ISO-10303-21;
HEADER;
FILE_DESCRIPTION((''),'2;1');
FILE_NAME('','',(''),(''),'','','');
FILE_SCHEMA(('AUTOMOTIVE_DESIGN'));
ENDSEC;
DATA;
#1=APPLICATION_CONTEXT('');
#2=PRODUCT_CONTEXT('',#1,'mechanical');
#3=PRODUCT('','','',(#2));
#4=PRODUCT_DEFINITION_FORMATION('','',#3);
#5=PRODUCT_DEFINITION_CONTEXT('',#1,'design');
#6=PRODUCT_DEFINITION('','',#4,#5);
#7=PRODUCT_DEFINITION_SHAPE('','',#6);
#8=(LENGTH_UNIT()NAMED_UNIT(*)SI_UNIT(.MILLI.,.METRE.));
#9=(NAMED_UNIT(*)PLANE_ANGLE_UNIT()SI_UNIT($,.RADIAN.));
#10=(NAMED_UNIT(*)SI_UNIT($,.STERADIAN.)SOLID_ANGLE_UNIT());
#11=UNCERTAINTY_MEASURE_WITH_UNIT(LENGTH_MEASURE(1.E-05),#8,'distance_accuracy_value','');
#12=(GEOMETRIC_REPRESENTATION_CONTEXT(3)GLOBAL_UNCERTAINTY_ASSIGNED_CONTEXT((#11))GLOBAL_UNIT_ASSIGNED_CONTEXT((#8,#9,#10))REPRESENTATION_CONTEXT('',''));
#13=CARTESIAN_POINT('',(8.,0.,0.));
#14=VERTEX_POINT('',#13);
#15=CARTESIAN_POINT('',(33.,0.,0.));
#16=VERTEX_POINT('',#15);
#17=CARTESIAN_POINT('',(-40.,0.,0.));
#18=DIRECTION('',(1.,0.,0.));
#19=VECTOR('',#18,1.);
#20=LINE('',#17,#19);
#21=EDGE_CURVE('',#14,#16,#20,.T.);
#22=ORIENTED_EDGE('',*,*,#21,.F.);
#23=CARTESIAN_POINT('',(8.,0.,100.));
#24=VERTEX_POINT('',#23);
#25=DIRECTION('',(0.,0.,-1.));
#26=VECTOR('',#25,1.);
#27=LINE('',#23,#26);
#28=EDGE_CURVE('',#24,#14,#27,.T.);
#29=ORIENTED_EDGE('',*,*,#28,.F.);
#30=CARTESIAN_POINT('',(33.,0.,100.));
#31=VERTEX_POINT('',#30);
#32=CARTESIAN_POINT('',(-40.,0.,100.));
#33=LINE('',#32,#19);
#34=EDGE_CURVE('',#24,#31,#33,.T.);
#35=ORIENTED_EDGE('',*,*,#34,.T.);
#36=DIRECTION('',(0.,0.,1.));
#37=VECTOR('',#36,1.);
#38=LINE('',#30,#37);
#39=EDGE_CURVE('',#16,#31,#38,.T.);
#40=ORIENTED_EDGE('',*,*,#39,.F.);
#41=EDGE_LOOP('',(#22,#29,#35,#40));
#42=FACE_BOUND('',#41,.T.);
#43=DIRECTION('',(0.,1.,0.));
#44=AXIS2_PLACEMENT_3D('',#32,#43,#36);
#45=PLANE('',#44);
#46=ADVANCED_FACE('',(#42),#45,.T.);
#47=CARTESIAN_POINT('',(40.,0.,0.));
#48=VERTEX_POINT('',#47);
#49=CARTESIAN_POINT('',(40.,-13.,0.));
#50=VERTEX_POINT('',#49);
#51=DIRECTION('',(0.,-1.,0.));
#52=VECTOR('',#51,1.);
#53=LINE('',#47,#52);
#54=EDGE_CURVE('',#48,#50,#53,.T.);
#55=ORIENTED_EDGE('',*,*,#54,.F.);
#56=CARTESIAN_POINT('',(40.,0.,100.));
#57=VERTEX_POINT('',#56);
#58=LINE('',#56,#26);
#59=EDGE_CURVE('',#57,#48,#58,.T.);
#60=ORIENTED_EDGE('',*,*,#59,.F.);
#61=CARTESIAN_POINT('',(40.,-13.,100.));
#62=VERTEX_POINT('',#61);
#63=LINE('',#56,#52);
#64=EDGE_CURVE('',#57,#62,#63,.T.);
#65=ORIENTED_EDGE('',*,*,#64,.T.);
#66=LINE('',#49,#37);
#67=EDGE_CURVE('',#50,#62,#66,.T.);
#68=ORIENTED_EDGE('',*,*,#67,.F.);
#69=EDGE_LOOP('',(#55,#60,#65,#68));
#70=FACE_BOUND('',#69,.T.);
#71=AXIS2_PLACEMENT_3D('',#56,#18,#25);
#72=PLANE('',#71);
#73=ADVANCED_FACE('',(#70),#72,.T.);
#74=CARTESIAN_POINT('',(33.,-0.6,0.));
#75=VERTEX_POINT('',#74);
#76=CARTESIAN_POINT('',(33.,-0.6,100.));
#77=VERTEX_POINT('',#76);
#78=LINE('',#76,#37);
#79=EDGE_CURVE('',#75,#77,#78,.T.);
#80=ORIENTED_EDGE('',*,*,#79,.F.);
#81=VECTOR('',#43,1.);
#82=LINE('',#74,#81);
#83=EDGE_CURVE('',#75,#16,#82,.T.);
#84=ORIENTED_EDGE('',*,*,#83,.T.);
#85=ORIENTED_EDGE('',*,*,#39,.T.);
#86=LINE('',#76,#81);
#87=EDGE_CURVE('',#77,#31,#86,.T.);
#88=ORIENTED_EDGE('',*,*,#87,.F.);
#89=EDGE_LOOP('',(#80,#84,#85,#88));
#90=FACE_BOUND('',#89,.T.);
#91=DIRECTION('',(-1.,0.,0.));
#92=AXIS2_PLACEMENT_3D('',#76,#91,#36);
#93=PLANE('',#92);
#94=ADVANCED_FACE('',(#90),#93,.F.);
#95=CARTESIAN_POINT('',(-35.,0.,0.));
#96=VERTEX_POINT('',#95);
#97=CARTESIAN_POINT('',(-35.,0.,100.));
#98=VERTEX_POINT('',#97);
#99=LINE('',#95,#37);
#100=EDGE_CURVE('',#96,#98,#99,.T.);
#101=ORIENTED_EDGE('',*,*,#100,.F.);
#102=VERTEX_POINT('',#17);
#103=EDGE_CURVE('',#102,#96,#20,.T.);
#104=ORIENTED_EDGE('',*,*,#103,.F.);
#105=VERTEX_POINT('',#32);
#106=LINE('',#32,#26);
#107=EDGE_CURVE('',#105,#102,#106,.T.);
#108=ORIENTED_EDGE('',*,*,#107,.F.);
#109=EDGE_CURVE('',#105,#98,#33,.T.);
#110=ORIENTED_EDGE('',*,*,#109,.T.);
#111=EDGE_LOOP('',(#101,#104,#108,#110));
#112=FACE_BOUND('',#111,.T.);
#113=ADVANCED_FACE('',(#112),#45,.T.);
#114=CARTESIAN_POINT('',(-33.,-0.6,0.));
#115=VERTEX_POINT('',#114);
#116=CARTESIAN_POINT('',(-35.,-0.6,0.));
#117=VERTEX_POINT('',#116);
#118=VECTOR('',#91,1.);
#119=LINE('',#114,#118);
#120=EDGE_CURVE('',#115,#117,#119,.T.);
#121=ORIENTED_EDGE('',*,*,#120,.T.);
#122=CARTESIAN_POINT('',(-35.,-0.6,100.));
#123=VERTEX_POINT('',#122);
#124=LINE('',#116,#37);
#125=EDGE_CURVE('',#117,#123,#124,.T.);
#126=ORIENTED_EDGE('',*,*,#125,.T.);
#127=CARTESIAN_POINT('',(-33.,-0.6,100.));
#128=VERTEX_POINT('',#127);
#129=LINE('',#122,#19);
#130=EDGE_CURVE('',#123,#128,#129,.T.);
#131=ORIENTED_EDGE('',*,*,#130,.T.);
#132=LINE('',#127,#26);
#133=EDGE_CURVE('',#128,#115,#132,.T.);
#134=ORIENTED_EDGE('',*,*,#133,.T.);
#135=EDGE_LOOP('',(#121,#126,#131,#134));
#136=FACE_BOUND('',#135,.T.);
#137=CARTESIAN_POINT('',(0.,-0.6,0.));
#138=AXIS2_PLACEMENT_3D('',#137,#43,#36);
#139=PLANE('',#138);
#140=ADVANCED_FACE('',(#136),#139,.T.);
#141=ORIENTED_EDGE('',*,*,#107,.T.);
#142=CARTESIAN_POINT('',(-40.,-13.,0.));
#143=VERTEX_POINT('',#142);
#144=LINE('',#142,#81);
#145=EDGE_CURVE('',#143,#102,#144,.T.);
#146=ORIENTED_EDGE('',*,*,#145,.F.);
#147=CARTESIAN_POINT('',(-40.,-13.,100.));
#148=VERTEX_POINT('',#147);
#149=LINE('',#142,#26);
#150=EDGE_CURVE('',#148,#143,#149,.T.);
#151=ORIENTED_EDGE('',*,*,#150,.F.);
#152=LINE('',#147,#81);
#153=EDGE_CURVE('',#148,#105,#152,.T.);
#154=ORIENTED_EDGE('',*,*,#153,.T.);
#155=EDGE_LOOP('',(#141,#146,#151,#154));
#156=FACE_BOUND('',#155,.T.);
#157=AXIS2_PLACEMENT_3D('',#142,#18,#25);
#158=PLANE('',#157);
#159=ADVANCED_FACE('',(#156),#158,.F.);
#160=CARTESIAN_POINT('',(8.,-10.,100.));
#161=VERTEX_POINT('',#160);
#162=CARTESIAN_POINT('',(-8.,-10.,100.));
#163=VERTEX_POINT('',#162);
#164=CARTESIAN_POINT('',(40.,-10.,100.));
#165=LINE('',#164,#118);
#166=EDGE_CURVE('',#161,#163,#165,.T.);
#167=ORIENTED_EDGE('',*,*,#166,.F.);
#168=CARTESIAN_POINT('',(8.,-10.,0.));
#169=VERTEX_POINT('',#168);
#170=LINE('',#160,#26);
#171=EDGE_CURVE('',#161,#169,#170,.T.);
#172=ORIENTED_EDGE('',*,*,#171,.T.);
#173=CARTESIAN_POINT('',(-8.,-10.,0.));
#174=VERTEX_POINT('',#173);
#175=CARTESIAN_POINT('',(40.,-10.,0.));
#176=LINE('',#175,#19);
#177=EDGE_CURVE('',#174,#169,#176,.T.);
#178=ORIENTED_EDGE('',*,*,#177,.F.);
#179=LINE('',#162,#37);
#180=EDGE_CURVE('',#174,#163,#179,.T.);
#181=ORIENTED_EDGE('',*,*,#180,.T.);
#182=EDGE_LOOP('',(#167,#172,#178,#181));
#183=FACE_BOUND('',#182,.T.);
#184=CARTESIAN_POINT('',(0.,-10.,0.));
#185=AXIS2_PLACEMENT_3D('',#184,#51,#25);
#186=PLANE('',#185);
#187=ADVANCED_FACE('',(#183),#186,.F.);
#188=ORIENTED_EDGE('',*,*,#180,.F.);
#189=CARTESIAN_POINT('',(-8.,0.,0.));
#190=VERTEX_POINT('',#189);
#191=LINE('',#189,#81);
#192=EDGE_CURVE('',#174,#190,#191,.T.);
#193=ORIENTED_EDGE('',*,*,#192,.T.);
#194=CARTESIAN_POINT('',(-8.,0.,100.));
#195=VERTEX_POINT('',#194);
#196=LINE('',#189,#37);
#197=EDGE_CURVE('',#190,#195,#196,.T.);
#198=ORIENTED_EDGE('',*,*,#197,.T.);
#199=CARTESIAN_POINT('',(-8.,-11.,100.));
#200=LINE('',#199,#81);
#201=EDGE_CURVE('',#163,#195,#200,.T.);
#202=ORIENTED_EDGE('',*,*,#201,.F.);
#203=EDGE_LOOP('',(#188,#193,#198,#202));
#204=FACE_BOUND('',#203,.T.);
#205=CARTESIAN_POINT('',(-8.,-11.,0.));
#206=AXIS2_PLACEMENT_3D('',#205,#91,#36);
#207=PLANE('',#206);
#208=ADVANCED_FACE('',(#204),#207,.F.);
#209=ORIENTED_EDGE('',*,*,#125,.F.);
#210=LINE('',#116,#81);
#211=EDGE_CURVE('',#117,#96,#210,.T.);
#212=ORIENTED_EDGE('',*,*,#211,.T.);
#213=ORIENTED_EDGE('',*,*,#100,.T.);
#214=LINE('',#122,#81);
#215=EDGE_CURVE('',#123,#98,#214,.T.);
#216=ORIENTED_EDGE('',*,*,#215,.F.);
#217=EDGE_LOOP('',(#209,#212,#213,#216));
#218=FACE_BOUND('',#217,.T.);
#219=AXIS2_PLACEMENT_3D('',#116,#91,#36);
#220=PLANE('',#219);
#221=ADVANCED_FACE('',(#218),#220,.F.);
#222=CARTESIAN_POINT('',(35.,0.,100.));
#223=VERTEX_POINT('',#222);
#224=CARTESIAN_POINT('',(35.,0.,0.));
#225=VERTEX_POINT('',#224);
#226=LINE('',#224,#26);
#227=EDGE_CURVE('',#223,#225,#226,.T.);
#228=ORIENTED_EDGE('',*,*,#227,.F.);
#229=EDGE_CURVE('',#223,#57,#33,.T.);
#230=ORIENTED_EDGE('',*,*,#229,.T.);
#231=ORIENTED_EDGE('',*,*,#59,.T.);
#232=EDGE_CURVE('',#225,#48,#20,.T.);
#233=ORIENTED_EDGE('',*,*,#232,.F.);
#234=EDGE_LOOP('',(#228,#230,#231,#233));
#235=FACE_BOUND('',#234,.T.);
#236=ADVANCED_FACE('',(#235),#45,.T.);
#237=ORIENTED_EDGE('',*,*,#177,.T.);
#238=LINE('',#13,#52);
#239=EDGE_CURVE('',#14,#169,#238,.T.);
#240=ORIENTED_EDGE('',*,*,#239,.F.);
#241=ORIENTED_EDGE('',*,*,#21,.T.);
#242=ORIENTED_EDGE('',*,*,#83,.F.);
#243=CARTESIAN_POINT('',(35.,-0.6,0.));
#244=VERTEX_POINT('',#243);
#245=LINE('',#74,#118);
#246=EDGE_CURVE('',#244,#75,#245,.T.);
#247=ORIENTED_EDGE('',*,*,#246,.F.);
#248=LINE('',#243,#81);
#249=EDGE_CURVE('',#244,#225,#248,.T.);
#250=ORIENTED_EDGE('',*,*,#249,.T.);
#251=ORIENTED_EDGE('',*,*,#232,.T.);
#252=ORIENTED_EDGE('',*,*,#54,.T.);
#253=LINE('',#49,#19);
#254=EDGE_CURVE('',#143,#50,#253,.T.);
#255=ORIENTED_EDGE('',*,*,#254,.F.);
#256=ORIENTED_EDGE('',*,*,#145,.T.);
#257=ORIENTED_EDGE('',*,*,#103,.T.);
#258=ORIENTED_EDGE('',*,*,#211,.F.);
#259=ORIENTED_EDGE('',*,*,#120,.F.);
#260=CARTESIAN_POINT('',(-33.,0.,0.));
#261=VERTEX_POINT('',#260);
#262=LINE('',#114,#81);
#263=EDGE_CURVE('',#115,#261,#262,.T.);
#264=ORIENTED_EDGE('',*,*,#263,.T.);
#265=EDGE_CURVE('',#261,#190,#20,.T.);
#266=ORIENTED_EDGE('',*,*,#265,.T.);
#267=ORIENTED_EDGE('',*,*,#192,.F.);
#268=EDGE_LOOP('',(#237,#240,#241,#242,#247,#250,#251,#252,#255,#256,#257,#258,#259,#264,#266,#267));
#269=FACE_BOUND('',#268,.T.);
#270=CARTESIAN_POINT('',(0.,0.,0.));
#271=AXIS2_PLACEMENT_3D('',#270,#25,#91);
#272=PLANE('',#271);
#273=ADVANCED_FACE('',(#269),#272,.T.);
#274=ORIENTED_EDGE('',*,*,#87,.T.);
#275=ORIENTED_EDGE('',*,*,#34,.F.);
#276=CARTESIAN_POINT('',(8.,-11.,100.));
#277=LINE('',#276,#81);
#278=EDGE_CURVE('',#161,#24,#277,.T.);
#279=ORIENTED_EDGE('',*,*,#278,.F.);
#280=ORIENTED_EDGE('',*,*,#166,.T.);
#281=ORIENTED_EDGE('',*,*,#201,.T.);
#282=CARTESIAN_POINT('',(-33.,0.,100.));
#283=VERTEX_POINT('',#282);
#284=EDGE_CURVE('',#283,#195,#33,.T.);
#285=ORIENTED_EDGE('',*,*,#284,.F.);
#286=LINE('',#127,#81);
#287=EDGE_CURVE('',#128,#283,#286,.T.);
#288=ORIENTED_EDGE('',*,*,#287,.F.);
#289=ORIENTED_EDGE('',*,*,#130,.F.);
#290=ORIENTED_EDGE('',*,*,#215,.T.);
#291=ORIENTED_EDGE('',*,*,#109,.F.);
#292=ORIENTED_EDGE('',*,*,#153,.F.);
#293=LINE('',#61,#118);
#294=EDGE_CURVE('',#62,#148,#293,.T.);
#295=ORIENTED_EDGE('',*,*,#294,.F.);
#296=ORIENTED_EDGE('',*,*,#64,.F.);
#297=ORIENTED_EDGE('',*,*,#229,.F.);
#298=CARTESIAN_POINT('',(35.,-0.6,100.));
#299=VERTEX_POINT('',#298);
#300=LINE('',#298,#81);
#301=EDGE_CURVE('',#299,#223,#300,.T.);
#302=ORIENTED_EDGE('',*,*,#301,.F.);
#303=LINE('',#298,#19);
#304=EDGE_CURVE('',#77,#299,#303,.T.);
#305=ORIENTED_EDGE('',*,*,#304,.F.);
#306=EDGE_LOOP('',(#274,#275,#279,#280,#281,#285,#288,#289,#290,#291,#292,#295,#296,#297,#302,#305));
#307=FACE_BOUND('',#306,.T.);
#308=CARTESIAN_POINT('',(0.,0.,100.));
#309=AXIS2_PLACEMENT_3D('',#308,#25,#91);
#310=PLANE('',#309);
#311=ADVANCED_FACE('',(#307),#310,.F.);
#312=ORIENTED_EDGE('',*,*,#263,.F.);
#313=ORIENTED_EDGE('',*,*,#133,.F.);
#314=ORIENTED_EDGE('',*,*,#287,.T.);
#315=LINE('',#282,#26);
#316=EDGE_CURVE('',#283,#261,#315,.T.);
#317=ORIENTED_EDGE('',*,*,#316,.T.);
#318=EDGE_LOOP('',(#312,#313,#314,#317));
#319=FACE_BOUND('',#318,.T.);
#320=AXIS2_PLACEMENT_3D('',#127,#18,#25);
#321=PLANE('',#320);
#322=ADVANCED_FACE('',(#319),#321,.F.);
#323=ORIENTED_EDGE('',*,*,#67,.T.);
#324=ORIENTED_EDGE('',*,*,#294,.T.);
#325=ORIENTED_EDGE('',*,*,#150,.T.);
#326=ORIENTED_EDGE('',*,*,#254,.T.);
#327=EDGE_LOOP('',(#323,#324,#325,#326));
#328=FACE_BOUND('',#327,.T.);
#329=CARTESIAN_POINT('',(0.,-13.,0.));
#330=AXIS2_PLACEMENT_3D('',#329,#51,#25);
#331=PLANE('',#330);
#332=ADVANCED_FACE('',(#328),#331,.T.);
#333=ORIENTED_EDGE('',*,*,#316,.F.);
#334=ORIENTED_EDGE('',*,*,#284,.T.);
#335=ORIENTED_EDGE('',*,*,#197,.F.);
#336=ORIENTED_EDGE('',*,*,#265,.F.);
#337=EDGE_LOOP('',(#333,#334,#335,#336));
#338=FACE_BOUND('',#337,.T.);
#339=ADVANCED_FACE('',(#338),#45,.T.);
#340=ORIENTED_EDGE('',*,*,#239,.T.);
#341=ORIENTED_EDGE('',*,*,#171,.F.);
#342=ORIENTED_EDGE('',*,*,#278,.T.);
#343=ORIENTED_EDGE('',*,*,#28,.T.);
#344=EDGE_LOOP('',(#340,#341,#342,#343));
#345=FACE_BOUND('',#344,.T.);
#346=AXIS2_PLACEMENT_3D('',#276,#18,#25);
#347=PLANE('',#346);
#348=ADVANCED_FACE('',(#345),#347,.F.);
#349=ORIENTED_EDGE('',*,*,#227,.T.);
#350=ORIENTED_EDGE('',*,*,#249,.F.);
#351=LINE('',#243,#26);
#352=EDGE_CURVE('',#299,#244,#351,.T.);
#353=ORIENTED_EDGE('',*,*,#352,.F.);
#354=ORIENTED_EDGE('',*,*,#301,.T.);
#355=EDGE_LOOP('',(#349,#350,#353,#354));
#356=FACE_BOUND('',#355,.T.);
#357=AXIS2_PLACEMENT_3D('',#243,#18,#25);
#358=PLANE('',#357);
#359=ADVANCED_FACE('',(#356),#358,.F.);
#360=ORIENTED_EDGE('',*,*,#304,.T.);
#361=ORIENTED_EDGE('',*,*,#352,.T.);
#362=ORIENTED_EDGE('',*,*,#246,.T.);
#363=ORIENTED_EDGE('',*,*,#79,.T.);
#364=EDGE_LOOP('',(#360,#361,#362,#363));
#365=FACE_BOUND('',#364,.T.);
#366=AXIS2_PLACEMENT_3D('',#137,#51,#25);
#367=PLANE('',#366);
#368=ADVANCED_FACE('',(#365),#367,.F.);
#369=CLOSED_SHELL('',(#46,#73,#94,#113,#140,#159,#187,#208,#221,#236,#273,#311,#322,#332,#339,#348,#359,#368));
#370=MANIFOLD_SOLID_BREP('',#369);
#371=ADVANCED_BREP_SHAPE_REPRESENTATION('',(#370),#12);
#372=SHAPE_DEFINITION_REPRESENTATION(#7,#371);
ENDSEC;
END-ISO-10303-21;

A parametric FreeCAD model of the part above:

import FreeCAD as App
import Part
import Sketcher
from FreeCAD import Vector

doc = App.newDocument("Part")
body = doc.addObject("PartDesign::Body", "Body")
body.AllowCompound = True

# Sketch on XY plane
sketch1 = doc.addObject("Sketcher::SketchObject", "Sketch")
body.addObject(sketch1)
sketch1.AttachmentSupport = (doc.XY_Plane, [""])
sketch1.MapMode = "FlatFace"
sketch1.addGeometry(Part.LineSegment(Vector(-40, 0, 0), Vector(-40, -10, 0)), False)
sketch1.addGeometry(Part.LineSegment(Vector(-40, -10, 0), Vector(40, -10, 0)), False)
sketch1.addGeometry(Part.LineSegment(Vector(40, -10, 0), Vector(40, 0, 0)), False)
sketch1.addGeometry(Part.LineSegment(Vector(40, 0, 0), Vector(-40, 0, 0)), False)
sketch1.addConstraint(Sketcher.Constraint("Coincident", 0, 2, 1, 1))
sketch1.addConstraint(Sketcher.Constraint("Coincident", 1, 2, 2, 1))
sketch1.addConstraint(Sketcher.Constraint("Coincident", 2, 2, 3, 1))
sketch1.addConstraint(Sketcher.Constraint("Coincident", 3, 2, 0, 1))
sketch1.addConstraint(Sketcher.Constraint("Vertical", 0))
sketch1.addConstraint(Sketcher.Constraint("Horizontal", 1))
sketch1.addConstraint(Sketcher.Constraint("Vertical", 2))
sketch1.addConstraint(Sketcher.Constraint("Horizontal", 3))
sketch1.addConstraint(Sketcher.Constraint("Symmetric", 2, 2, 3, 2, -1, 1))
sketch1.addConstraint(Sketcher.Constraint("DistanceX", 1, 1, 1, 2, 80.0))
sketch1.addConstraint(Sketcher.Constraint("DistanceY", 0, 2, 0, 1, 10.0))
pad1 = doc.addObject("PartDesign::Pad", "Pad")
body.addObject(pad1)
pad1.Profile = sketch1
pad1.Length = 100

# Sketch on XZ plane
sketch2 = doc.addObject("Sketcher::SketchObject", "Sketch001")
body.addObject(sketch2)
sketch2.AttachmentSupport = (doc.XZ_Plane, [""])
sketch2.MapMode = "FlatFace"
sketch2.addGeometry(Part.LineSegment(Vector(-35, 0, 0), Vector(-35, 100, 0)), False)
sketch2.addGeometry(Part.LineSegment(Vector(-35, 100, 0), Vector(-33, 100, 0)), False)
sketch2.addGeometry(Part.LineSegment(Vector(-33, 100, 0), Vector(-33, 0, 0)), False)
sketch2.addGeometry(Part.LineSegment(Vector(-33, 0, 0), Vector(-35, 0, 0)), False)
sketch2.addGeometry(Part.LineSegment(Vector(33, 0, 0), Vector(33, 100, 0)), False)
sketch2.addGeometry(Part.LineSegment(Vector(33, 100, 0), Vector(35, 100, 0)), False)
sketch2.addGeometry(Part.LineSegment(Vector(35, 100, 0), Vector(35, 0, 0)), False)
sketch2.addGeometry(Part.LineSegment(Vector(35, 0, 0), Vector(33, 0, 0)), False)
sketch2.addConstraint(Sketcher.Constraint("Coincident", 0, 2, 1, 1))
sketch2.addConstraint(Sketcher.Constraint("Coincident", 1, 2, 2, 1))
sketch2.addConstraint(Sketcher.Constraint("Coincident", 2, 2, 3, 1))
sketch2.addConstraint(Sketcher.Constraint("Coincident", 3, 2, 0, 1))
sketch2.addConstraint(Sketcher.Constraint("Coincident", 4, 2, 5, 1))
sketch2.addConstraint(Sketcher.Constraint("Coincident", 5, 2, 6, 1))
sketch2.addConstraint(Sketcher.Constraint("Coincident", 6, 2, 7, 1))
sketch2.addConstraint(Sketcher.Constraint("Coincident", 7, 2, 4, 1))
sketch2.addConstraint(Sketcher.Constraint("Vertical", 0))
sketch2.addConstraint(Sketcher.Constraint("Horizontal", 1))
sketch2.addConstraint(Sketcher.Constraint("Vertical", 2))
sketch2.addConstraint(Sketcher.Constraint("Horizontal", 3))
sketch2.addConstraint(Sketcher.Constraint("Vertical", 4))
sketch2.addConstraint(Sketcher.Constraint("Horizontal", 5))
sketch2.addConstraint(Sketcher.Constraint("Vertical", 6))
sketch2.addConstraint(Sketcher.Constraint("Horizontal", 7))
sketch2.addConstraint(Sketcher.Constraint("Symmetric", 3, 2, 6, 2, -1, 1))
sketch2.addConstraint(Sketcher.Constraint("Symmetric", 1, 2, 4, 2, -2))
sketch2.addConstraint(Sketcher.Constraint("PointOnObject", 2, 2, -1))
sketch2.addConstraint(Sketcher.Constraint("DistanceX", 1, 1, 1, 2, 2.0))
sketch2.addConstraint(Sketcher.Constraint("DistanceY", 0, 1, 0, 2, 100.0))
sketch2.addConstraint(Sketcher.Constraint("DistanceX", 0, 2, -1, 1, 35.0))
pocket1 = doc.addObject("PartDesign::Pocket", "Pocket")
body.addObject(pocket1)
pocket1.Profile = sketch2
pocket1.Length = 0.6
pocket1.Reversed = True

# Sketch on XZ plane
sketch3 = doc.addObject("Sketcher::SketchObject", "Sketch002")
body.addObject(sketch3)
sketch3.AttachmentSupport = (doc.XZ_Plane, [""])
sketch3.MapMode = "FlatFace"
sketch3.addGeometry(Part.LineSegment(Vector(-8, 0, 0), Vector(-8, 100, 0)), False)
sketch3.addGeometry(Part.LineSegment(Vector(-8, 100, 0), Vector(8, 100, 0)), False)
sketch3.addGeometry(Part.LineSegment(Vector(8, 100, 0), Vector(8, 0, 0)), False)
sketch3.addGeometry(Part.LineSegment(Vector(8, 0, 0), Vector(-8, 0, 0)), False)
sketch3.addConstraint(Sketcher.Constraint("Coincident", 0, 2, 1, 1))
sketch3.addConstraint(Sketcher.Constraint("Coincident", 1, 2, 2, 1))
sketch3.addConstraint(Sketcher.Constraint("Coincident", 2, 2, 3, 1))
sketch3.addConstraint(Sketcher.Constraint("Coincident", 3, 2, 0, 1))
sketch3.addConstraint(Sketcher.Constraint("Vertical", 0))
sketch3.addConstraint(Sketcher.Constraint("Horizontal", 1))
sketch3.addConstraint(Sketcher.Constraint("Vertical", 2))
sketch3.addConstraint(Sketcher.Constraint("Horizontal", 3))
sketch3.addConstraint(Sketcher.Constraint("Symmetric", 2, 2, 3, 2, -1, 1))
sketch3.addConstraint(Sketcher.Constraint("DistanceX", 1, 1, 1, 2, 16.0))
sketch3.addConstraint(Sketcher.Constraint("DistanceY", 0, 1, 0, 2, 100.0))
pocket2 = doc.addObject("PartDesign::Pocket", "Pocket001")
body.addObject(pocket2)
pocket2.Profile = sketch3
pocket2.Length = 11
pocket2.Reversed = True

# Sketch on XZ plane
sketch4 = doc.addObject("Sketcher::SketchObject", "Sketch003")
body.addObject(sketch4)
sketch4.AttachmentSupport = (doc.XZ_Plane, [""])
sketch4.MapMode = "FlatFace"
sketch4.AttachmentOffset = App.Placement(Vector(0, 0, 10), App.Rotation())
sketch4.addGeometry(Part.LineSegment(Vector(-40, 100, 0), Vector(-40, 0, 0)), False)
sketch4.addGeometry(Part.LineSegment(Vector(-40, 0, 0), Vector(40, 0, 0)), False)
sketch4.addGeometry(Part.LineSegment(Vector(40, 0, 0), Vector(40, 100, 0)), False)
sketch4.addGeometry(Part.LineSegment(Vector(40, 100, 0), Vector(-40, 100, 0)), False)
sketch4.addConstraint(Sketcher.Constraint("Coincident", 0, 2, 1, 1))
sketch4.addConstraint(Sketcher.Constraint("Coincident", 1, 2, 2, 1))
sketch4.addConstraint(Sketcher.Constraint("Coincident", 2, 2, 3, 1))
sketch4.addConstraint(Sketcher.Constraint("Coincident", 3, 2, 0, 1))
sketch4.addConstraint(Sketcher.Constraint("Vertical", 0))
sketch4.addConstraint(Sketcher.Constraint("Horizontal", 1))
sketch4.addConstraint(Sketcher.Constraint("Vertical", 2))
sketch4.addConstraint(Sketcher.Constraint("Horizontal", 3))
sketch4.addConstraint(Sketcher.Constraint("Symmetric", 0, 2, 1, 2, -1, 1))
sketch4.addConstraint(Sketcher.Constraint("DistanceX", 1, 1, 1, 2, 80.0))
sketch4.addConstraint(Sketcher.Constraint("DistanceY", 0, 2, 0, 1, 100.0))
pad2 = doc.addObject("PartDesign::Pad", "Pad001")
body.addObject(pad2)
pad2.Profile = sketch4
pad2.Length = 3

doc.recompute()
